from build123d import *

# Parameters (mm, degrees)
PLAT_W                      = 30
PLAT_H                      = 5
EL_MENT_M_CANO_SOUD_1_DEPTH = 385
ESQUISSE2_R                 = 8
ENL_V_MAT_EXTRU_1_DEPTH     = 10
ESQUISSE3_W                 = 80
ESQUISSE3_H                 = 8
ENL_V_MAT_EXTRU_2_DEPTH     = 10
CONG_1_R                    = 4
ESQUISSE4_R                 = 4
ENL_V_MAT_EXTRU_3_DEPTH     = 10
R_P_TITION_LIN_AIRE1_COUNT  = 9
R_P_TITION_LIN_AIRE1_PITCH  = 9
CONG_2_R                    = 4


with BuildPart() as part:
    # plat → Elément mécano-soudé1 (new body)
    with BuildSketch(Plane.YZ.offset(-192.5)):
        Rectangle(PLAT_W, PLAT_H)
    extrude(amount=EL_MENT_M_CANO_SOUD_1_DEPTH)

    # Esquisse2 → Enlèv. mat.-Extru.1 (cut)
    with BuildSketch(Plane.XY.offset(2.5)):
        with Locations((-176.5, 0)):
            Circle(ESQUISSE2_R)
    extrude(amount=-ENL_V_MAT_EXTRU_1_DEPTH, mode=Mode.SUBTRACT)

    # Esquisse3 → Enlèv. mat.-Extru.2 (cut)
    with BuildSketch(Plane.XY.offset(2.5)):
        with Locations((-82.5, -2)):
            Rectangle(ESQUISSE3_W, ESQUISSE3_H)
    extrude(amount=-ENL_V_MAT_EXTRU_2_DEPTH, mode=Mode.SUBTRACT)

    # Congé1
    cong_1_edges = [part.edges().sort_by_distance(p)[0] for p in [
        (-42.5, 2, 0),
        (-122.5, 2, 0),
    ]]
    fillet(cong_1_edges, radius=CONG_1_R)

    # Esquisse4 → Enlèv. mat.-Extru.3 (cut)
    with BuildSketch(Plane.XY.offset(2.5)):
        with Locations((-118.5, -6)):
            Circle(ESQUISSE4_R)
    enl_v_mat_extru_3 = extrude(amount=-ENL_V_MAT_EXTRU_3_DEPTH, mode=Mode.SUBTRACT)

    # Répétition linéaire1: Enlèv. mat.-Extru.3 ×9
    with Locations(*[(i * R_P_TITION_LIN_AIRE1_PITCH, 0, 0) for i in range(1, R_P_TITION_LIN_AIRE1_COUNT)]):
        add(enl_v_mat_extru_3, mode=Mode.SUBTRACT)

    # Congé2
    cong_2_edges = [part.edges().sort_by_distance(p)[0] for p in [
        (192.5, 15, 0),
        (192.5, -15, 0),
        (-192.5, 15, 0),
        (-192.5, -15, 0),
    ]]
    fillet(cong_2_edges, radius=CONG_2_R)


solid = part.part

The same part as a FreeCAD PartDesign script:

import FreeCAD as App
import Part
import Sketcher
from FreeCAD import Vector
Q = App.Units.Quantity


def edges_at(feature, points):
    """Names of the edges that pass closest to the given points."""
    edges = feature.Shape.Edges
    near = lambda p: min(range(len(edges)), key=lambda i: edges[i].distToShape(Part.Vertex(*p))[0])
    return sorted({f"Edge{near(p) + 1}" for p in points})

doc = App.newDocument("Part")
params = doc.addObject("Spreadsheet::Sheet", "Params")
for row, (alias, value) in enumerate([
    ("sketch1_width", "30 mm"),
    ("sketch1_height", "5 mm"),
    ("pad1_length", "385 mm"),
    ("sketch2_diameter", "16 mm"),
    ("pocket1_length", "10 mm"),
    ("sketch3_width", "80 mm"),
    ("sketch3_height", "8 mm"),
    ("pocket2_length", "10 mm"),
    ("fillet_radius", "4 mm"),
    ("sketch4_diameter", "8 mm"),
    ("pocket3_length", "10 mm"),
    ("linearpattern_pitch", "9 mm"),
    ("fillet2_radius", "4 mm"),
], start=1):
    params.set(f"A{row}", alias)
    params.set(f"B{row}", "=" + value)
    params.setAlias(f"B{row}", alias)

body = doc.addObject("PartDesign::Body", "Body")

sketch1 = doc.addObject("Sketcher::SketchObject", "Sketch")
body.addObject(sketch1)
sketch1.AttachmentSupport = (doc.YZ_Plane, [""])
sketch1.MapMode = "FlatFace"
sketch1.AttachmentOffset = App.Placement(Vector(0, 0, -192.5), App.Rotation())
sketch1.addGeometry([
    Part.LineSegment(Vector(-15, 2, 0), Vector(-15, -2, 0)),
    Part.LineSegment(Vector(-15, -2, 0), Vector(15, -2, 0)),
    Part.LineSegment(Vector(15, -2, 0), Vector(15, 2, 0)),
    Part.LineSegment(Vector(15, 2, 0), Vector(-15, 2, 0)),
], False)
sketch1.addConstraint([
    Sketcher.Constraint("Coincident", 0, 2, 1, 1),
    Sketcher.Constraint("Coincident", 1, 2, 2, 1),
    Sketcher.Constraint("Coincident", 2, 2, 3, 1),
    Sketcher.Constraint("Coincident", 3, 2, 0, 1),
    Sketcher.Constraint("Vertical", 0),
    Sketcher.Constraint("Horizontal", 1),
    Sketcher.Constraint("Vertical", 2),
    Sketcher.Constraint("Horizontal", 3),
    Sketcher.Constraint("Symmetric", 0, 2, 2, 2, -1, 1),
    Sketcher.Constraint("DistanceX", 1, 1, 1, 2, Q("30 mm")),
    Sketcher.Constraint("DistanceY", 0, 2, 0, 1, Q("5 mm")),
])
sketch1.setExpression("Constraints[9]", "Params.sketch1_width")
sketch1.setExpression("Constraints[10]", "Params.sketch1_height")
pad1 = doc.addObject("PartDesign::Pad", "Pad")
body.addObject(pad1)
pad1.Profile = sketch1
pad1.setExpression("Length", "Params.pad1_length")

sketch2 = doc.addObject("Sketcher::SketchObject", "Sketch001")
body.addObject(sketch2)
sketch2.AttachmentSupport = (doc.XY_Plane, [""])
sketch2.MapMode = "FlatFace"
sketch2.AttachmentOffset = App.Placement(Vector(0, 0, 2.5), App.Rotation())
sketch2.addGeometry(Part.Circle(Vector(-176, 0, 0), Vector(0, 0, 1), 8), False)
sketch2.addConstraint([
    Sketcher.Constraint("PointOnObject", 0, 3, -1),
    Sketcher.Constraint("Diameter", 0, Q("16 mm")),
    Sketcher.Constraint("DistanceX", 0, 3, -1, 1, Q("176.5 mm")),
])
sketch2.setExpression("Constraints[1]", "Params.sketch2_diameter")
pocket1 = doc.addObject("PartDesign::Pocket", "Pocket")
body.addObject(pocket1)
pocket1.Profile = sketch2
pocket1.setExpression("Length", "Params.pocket1_length")

sketch3 = doc.addObject("Sketcher::SketchObject", "Sketch002")
body.addObject(sketch3)
sketch3.AttachmentSupport = (doc.XY_Plane, [""])
sketch3.MapMode = "FlatFace"
sketch3.AttachmentOffset = App.Placement(Vector(0, 0, 2.5), App.Rotation())
sketch3.addGeometry([
    Part.LineSegment(Vector(-122, 2, 0), Vector(-122, -6, 0)),
    Part.LineSegment(Vector(-122, -6, 0), Vector(-42, -6, 0)),
    Part.LineSegment(Vector(-42, -6, 0), Vector(-42, 2, 0)),
    Part.LineSegment(Vector(-42, 2, 0), Vector(-122, 2, 0)),
], False)
sketch3.addConstraint([
    Sketcher.Constraint("Coincident", 0, 2, 1, 1),
    Sketcher.Constraint("Coincident", 1, 2, 2, 1),
    Sketcher.Constraint("Coincident", 2, 2, 3, 1),
    Sketcher.Constraint("Coincident", 3, 2, 0, 1),
    Sketcher.Constraint("Vertical", 0),
    Sketcher.Constraint("Horizontal", 1),
    Sketcher.Constraint("Vertical", 2),
    Sketcher.Constraint("Horizontal", 3),
    Sketcher.Constraint("DistanceX", 1, 1, 1, 2, Q("80 mm")),
    Sketcher.Constraint("DistanceY", 0, 2, 0, 1, Q("8 mm")),
    Sketcher.Constraint("DistanceY", 0, 2, -1, 1, Q("6 mm")),
    Sketcher.Constraint("DistanceX", 0, 2, -1, 1, Q("122.5 mm")),
])
sketch3.setExpression("Constraints[8]", "Params.sketch3_width")
sketch3.setExpression("Constraints[9]", "Params.sketch3_height")
pocket2 = doc.addObject("PartDesign::Pocket", "Pocket001")
body.addObject(pocket2)
pocket2.Profile = sketch3
pocket2.setExpression("Length", "Params.pocket2_length")
doc.recompute()

fillet = doc.addObject("PartDesign::Fillet", "Fillet")
body.addObject(fillet)
fillet.Base = (pocket2, edges_at(pocket2, [(-42.5, 2, 0), (-122.5, 2, 0)]))
fillet.setExpression("Radius", "Params.fillet_radius")

sketch4 = doc.addObject("Sketcher::SketchObject", "Sketch003")
body.addObject(sketch4)
sketch4.AttachmentSupport = (doc.XY_Plane, [""])
sketch4.MapMode = "FlatFace"
sketch4.AttachmentOffset = App.Placement(Vector(0, 0, 2.5), App.Rotation())
sketch4.addGeometry(Part.Circle(Vector(-118.5, -6, 0), Vector(0, 0, 1), 4), False)
sketch4.addConstraint([
    Sketcher.Constraint("Diameter", 0, Q("8 mm")),
    Sketcher.Constraint("DistanceY", 0, 3, -1, 1, Q("6 mm")),
    Sketcher.Constraint("DistanceX", 0, 3, -1, 1, Q("118.5 mm")),
])
sketch4.setExpression("Constraints[0]", "Params.sketch4_diameter")
pocket3 = doc.addObject("PartDesign::Pocket", "Pocket002")
body.addObject(pocket3)
pocket3.Profile = sketch4
pocket3.setExpression("Length", "Params.pocket3_length")
doc.recompute()

linearpattern = doc.addObject("PartDesign::LinearPattern", "LinearPattern")
body.addObject(linearpattern)
linearpattern.Originals = [pocket3]
linearpattern.Direction = (doc.X_Axis, [""])
linearpattern.Mode = "offset"
linearpattern.setExpression("Offset", "Params.linearpattern_pitch")
linearpattern.Occurrences = 9
body.Tip = linearpattern
doc.recompute()

fillet2 = doc.addObject("PartDesign::Fillet", "Fillet001")
body.addObject(fillet2)
fillet2.Base = (linearpattern, edges_at(linearpattern, [
    (192.5, 15, 0),
    (192.5, -15, 0),
    (-192.5, 15, 0),
    (-192.5, -15, 0),
]))
fillet2.setExpression("Radius", "Params.fillet2_radius")

doc.recompute()
